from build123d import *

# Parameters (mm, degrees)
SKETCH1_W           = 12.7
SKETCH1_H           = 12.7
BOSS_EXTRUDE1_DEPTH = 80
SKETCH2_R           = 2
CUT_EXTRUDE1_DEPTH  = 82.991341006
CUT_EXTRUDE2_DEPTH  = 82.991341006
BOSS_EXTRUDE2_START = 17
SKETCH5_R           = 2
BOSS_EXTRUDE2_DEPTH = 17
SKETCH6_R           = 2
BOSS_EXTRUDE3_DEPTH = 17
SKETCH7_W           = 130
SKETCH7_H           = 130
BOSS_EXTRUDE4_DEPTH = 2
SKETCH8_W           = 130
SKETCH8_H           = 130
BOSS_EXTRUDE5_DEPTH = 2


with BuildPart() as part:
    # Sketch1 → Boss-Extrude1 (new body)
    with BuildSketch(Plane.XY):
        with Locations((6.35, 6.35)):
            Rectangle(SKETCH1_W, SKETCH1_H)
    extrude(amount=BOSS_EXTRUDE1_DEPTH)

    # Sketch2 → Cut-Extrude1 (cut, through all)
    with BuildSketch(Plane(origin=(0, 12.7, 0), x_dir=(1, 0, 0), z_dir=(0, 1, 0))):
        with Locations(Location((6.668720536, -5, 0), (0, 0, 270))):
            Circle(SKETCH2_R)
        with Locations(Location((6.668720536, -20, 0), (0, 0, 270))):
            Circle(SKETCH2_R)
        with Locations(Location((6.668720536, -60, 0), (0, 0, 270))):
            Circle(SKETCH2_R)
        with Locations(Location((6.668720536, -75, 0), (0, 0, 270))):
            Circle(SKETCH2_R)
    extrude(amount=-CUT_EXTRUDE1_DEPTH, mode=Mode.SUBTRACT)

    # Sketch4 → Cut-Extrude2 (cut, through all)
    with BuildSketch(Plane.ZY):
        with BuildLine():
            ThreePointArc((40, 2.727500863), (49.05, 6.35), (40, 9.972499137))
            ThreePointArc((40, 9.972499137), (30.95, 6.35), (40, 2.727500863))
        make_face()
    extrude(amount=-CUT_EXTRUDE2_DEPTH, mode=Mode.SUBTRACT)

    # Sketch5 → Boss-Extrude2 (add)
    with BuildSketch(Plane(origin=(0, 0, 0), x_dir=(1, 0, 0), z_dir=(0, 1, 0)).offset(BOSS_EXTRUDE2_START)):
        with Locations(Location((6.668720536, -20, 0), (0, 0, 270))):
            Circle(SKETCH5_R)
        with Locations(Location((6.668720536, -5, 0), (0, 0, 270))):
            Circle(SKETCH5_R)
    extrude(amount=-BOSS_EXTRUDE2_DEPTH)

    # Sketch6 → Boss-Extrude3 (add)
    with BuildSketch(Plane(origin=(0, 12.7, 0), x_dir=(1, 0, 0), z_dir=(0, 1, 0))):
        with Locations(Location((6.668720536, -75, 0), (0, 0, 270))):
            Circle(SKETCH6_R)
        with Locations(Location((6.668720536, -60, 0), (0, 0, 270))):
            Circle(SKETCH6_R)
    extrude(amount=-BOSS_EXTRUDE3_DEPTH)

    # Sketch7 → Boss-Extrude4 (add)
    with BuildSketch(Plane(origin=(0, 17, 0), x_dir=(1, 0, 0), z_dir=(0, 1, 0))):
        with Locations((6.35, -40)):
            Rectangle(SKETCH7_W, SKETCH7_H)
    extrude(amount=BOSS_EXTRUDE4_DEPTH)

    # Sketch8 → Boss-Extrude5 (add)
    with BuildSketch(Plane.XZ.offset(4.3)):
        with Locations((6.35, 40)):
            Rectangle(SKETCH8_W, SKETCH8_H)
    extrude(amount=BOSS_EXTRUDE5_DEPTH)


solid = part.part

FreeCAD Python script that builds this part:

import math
import FreeCAD as App
import Part
import Sketcher
from FreeCAD import Vector
Q = App.Units.Quantity


def add_polygon(sketch, points):
    """Adds a closed chain of lines whose ends are joined by coincident constraints."""
    first, n = sketch.GeometryCount, len(points)
    for a, b in zip(points, points[1:] + points[:1]):
        sketch.addGeometry(Part.LineSegment(App.Vector(*a, 0), App.Vector(*b, 0)), False)
    for i in range(n):
        sketch.addConstraint(Sketcher.Constraint("Coincident", first + i, 2, first + (i + 1) % n, 1))

doc = App.newDocument("Part")
body = doc.addObject("PartDesign::Body", "Body")

# Sketch on XY plane
sketch1 = doc.addObject("Sketcher::SketchObject", "Sketch")
body.addObject(sketch1)
sketch1.AttachmentSupport = (doc.XY_Plane, [""])
sketch1.MapMode = "FlatFace"
add_polygon(sketch1, [(0, 13), (0, 0), (13, 0), (13, 13)])  # lines 0-3
sketch1.addConstraint([
    Sketcher.Constraint("Vertical", 0),
    Sketcher.Constraint("Horizontal", 1),
    Sketcher.Constraint("Vertical", 2),
    Sketcher.Constraint("Horizontal", 3),
    Sketcher.Constraint("Coincident", 0, 2, -1, 1),
    Sketcher.Constraint("Equal", 3, 0),
    Sketcher.Constraint("DistanceX", 1, 1, 1, 2, Q("12.7 mm")),
])
pad1 = doc.addObject("PartDesign::Pad", "Pad")
body.addObject(pad1)
pad1.Profile = sketch1
pad1.Length = 80

# Sketch on XZ plane
sketch2 = doc.addObject("Sketcher::SketchObject", "Sketch001")
body.addObject(sketch2)
sketch2.AttachmentSupport = (doc.XZ_Plane, [""])
sketch2.MapMode = "FlatFace"
sketch2.AttachmentOffset = App.Placement(Vector(0, 0, -12.7), App.Rotation())
sketch2.addGeometry([
    Part.Circle(Vector(6.7, 5, 0), Vector(0, 0, 1), 2),
    Part.Circle(Vector(6.7, 20, 0), Vector(0, 0, 1), 2),
    Part.Circle(Vector(6.7, 60, 0), Vector(0, 0, 1), 2),
    Part.Circle(Vector(6.7, 75, 0), Vector(0, 0, 1), 2),
], False)
sketch2.addConstraint([
    Sketcher.Constraint("Equal", 0, 1),
    Sketcher.Constraint("Equal", 1, 2),
    Sketcher.Constraint("Equal", 2, 3),
    Sketcher.Constraint("Vertical", 0, 3, 1, 3),
    Sketcher.Constraint("Vertical", 1, 3, 2, 3),
    Sketcher.Constraint("Vertical", 2, 3, 3, 3),
    Sketcher.Constraint("Diameter", 0, Q("4 mm")),
    Sketcher.Constraint("DistanceY", -1, 1, 0, 3, Q("5 mm")),
    Sketcher.Constraint("DistanceY", -1, 1, 1, 3, Q("20 mm")),
    Sketcher.Constraint("DistanceY", -1, 1, 2, 3, Q("60 mm")),
    Sketcher.Constraint("DistanceY", -1, 1, 3, 3, Q("75 mm")),
    Sketcher.Constraint("DistanceX", -1, 1, 0, 3, Q("6.668721 mm")),
])
pocket1 = doc.addObject("PartDesign::Pocket", "Pocket")
body.addObject(pocket1)
pocket1.Profile = sketch2
pocket1.Type = "ThroughAll"
pocket1.Reversed = True

# Sketch on YZ plane
sketch3 = doc.addObject("Sketcher::SketchObject", "Sketch002")
body.addObject(sketch3)
sketch3.AttachmentSupport = (doc.YZ_Plane, [""])
sketch3.MapMode = "FlatFace"
sketch3.addGeometry([
    Part.ArcOfCircle(Part.Circle(Vector(6, 44, 0), Vector(0, 0, 1), 5), math.radians(-46), math.radians(226)),
    Part.ArcOfCircle(Part.Circle(Vector(6, 36, 0), Vector(0, 0, 1), 5), math.radians(134), math.radians(406)),
], False)
sketch3.addConstraint([
    Sketcher.Constraint("Coincident", 0, 1, 1, 2),
    Sketcher.Constraint("Coincident", 1, 1, 0, 2),
    Sketcher.Constraint("Equal", 0, 1),
    Sketcher.Constraint("Horizontal", 0, 1, 1, 1),
    Sketcher.Constraint("Radius", 0, Q("5.25 mm")),
    Sketcher.Constraint("DistanceY", -1, 1, 0, 1, Q("40 mm")),
    Sketcher.Constraint("DistanceY", -1, 1, 0, 3, Q("43.8 mm")),
    Sketcher.Constraint("DistanceX", -1, 1, 0, 3, Q("6.35 mm")),
])
pocket2 = doc.addObject("PartDesign::Pocket", "Pocket001")
body.addObject(pocket2)
pocket2.Profile = sketch3
pocket2.Type = "ThroughAll"
pocket2.Reversed = True

# Sketch on XZ plane
sketch4 = doc.addObject("Sketcher::SketchObject", "Sketch003")
body.addObject(sketch4)
sketch4.AttachmentSupport = (doc.XZ_Plane, [""])
sketch4.MapMode = "FlatFace"
sketch4.AttachmentOffset = App.Placement(Vector(0, 0, -17), App.Rotation())
sketch4.addGeometry([
    Part.Circle(Vector(6.7, 20, 0), Vector(0, 0, 1), 2),
    Part.Circle(Vector(6.7, 5, 0), Vector(0, 0, 1), 2),
], False)
sketch4.addConstraint([
    Sketcher.Constraint("Equal", 0, 1),
    Sketcher.Constraint("Vertical", 0, 3, 1, 3),
    Sketcher.Constraint("Diameter", 0, Q("4 mm")),
    Sketcher.Constraint("DistanceY", -1, 1, 0, 3, Q("20 mm")),
    Sketcher.Constraint("DistanceY", -1, 1, 1, 3, Q("5 mm")),
    Sketcher.Constraint("DistanceX", -1, 1, 0, 3, Q("6.668721 mm")),
])
pad2 = doc.addObject("PartDesign::Pad", "Pad001")
body.addObject(pad2)
pad2.Profile = sketch4
pad2.Length = 17

# Sketch on XZ plane
sketch5 = doc.addObject("Sketcher::SketchObject", "Sketch004")
body.addObject(sketch5)
sketch5.AttachmentSupport = (doc.XZ_Plane, [""])
sketch5.MapMode = "FlatFace"
sketch5.AttachmentOffset = App.Placement(Vector(0, 0, -12.7), App.Rotation())
sketch5.addGeometry([
    Part.Circle(Vector(6.7, 75, 0), Vector(0, 0, 1), 2),
    Part.Circle(Vector(6.7, 60, 0), Vector(0, 0, 1), 2),
], False)
sketch5.addConstraint([
    Sketcher.Constraint("Equal", 0, 1),
    Sketcher.Constraint("Vertical", 0, 3, 1, 3),
    Sketcher.Constraint("Diameter", 0, Q("4 mm")),
    Sketcher.Constraint("DistanceY", -1, 1, 0, 3, Q("75 mm")),
    Sketcher.Constraint("DistanceY", -1, 1, 1, 3, Q("60 mm")),
    Sketcher.Constraint("DistanceX", -1, 1, 0, 3, Q("6.668721 mm")),
])
pad3 = doc.addObject("PartDesign::Pad", "Pad002")
body.addObject(pad3)
pad3.Profile = sketch5
pad3.Length = 17

# Sketch on XZ plane
sketch6 = doc.addObject("Sketcher::SketchObject", "Sketch005")
body.addObject(sketch6)
sketch6.AttachmentSupport = (doc.XZ_Plane, [""])
sketch6.MapMode = "FlatFace"
sketch6.AttachmentOffset = App.Placement(Vector(0, 0, -17), App.Rotation())
add_polygon(sketch6, [(-59, -25), (-59, 105), (71, 105), (71, -25)])  # lines 0-3
sketch6.addConstraint([
    Sketcher.Constraint("Vertical", 0),
    Sketcher.Constraint("Horizontal", 1),
    Sketcher.Constraint("Vertical", 2),
    Sketcher.Constraint("Horizontal", 3),
    Sketcher.Constraint("Equal", 3, 0),
    Sketcher.Constraint("DistanceX", 1, 1, 1, 2, Q("130 mm")),
    Sketcher.Constraint("DistanceY", -1, 1, 0, 2, Q("105 mm")),
    Sketcher.Constraint("DistanceX", 0, 2, -1, 1, Q("58.65 mm")),
])
pad4 = doc.addObject("PartDesign::Pad", "Pad003")
body.addObject(pad4)
pad4.Profile = sketch6
pad4.Length = 2
pad4.Reversed = True

# Sketch on XZ plane
sketch7 = doc.addObject("Sketcher::SketchObject", "Sketch006")
body.addObject(sketch7)
sketch7.AttachmentSupport = (doc.XZ_Plane, [""])
sketch7.MapMode = "FlatFace"
sketch7.AttachmentOffset = App.Placement(Vector(0, 0, 4.3), App.Rotation())
add_polygon(sketch7, [(-59, 105), (-59, -25), (71, -25), (71, 105)])  # lines 0-3
sketch7.addConstraint([
    Sketcher.Constraint("Vertical", 0),
    Sketcher.Constraint("Horizontal", 1),
    Sketcher.Constraint("Vertical", 2),
    Sketcher.Constraint("Horizontal", 3),
    Sketcher.Constraint("Equal", 3, 0),
    Sketcher.Constraint("DistanceX", 1, 1, 1, 2, Q("130 mm")),
    Sketcher.Constraint("DistanceY", 0, 2, -1, 1, Q("25 mm")),
    Sketcher.Constraint("DistanceX", 0, 2, -1, 1, Q("58.65 mm")),
])
pad5 = doc.addObject("PartDesign::Pad", "Pad004")
body.addObject(pad5)
pad5.Profile = sketch7
pad5.Length = 2

doc.recompute()
